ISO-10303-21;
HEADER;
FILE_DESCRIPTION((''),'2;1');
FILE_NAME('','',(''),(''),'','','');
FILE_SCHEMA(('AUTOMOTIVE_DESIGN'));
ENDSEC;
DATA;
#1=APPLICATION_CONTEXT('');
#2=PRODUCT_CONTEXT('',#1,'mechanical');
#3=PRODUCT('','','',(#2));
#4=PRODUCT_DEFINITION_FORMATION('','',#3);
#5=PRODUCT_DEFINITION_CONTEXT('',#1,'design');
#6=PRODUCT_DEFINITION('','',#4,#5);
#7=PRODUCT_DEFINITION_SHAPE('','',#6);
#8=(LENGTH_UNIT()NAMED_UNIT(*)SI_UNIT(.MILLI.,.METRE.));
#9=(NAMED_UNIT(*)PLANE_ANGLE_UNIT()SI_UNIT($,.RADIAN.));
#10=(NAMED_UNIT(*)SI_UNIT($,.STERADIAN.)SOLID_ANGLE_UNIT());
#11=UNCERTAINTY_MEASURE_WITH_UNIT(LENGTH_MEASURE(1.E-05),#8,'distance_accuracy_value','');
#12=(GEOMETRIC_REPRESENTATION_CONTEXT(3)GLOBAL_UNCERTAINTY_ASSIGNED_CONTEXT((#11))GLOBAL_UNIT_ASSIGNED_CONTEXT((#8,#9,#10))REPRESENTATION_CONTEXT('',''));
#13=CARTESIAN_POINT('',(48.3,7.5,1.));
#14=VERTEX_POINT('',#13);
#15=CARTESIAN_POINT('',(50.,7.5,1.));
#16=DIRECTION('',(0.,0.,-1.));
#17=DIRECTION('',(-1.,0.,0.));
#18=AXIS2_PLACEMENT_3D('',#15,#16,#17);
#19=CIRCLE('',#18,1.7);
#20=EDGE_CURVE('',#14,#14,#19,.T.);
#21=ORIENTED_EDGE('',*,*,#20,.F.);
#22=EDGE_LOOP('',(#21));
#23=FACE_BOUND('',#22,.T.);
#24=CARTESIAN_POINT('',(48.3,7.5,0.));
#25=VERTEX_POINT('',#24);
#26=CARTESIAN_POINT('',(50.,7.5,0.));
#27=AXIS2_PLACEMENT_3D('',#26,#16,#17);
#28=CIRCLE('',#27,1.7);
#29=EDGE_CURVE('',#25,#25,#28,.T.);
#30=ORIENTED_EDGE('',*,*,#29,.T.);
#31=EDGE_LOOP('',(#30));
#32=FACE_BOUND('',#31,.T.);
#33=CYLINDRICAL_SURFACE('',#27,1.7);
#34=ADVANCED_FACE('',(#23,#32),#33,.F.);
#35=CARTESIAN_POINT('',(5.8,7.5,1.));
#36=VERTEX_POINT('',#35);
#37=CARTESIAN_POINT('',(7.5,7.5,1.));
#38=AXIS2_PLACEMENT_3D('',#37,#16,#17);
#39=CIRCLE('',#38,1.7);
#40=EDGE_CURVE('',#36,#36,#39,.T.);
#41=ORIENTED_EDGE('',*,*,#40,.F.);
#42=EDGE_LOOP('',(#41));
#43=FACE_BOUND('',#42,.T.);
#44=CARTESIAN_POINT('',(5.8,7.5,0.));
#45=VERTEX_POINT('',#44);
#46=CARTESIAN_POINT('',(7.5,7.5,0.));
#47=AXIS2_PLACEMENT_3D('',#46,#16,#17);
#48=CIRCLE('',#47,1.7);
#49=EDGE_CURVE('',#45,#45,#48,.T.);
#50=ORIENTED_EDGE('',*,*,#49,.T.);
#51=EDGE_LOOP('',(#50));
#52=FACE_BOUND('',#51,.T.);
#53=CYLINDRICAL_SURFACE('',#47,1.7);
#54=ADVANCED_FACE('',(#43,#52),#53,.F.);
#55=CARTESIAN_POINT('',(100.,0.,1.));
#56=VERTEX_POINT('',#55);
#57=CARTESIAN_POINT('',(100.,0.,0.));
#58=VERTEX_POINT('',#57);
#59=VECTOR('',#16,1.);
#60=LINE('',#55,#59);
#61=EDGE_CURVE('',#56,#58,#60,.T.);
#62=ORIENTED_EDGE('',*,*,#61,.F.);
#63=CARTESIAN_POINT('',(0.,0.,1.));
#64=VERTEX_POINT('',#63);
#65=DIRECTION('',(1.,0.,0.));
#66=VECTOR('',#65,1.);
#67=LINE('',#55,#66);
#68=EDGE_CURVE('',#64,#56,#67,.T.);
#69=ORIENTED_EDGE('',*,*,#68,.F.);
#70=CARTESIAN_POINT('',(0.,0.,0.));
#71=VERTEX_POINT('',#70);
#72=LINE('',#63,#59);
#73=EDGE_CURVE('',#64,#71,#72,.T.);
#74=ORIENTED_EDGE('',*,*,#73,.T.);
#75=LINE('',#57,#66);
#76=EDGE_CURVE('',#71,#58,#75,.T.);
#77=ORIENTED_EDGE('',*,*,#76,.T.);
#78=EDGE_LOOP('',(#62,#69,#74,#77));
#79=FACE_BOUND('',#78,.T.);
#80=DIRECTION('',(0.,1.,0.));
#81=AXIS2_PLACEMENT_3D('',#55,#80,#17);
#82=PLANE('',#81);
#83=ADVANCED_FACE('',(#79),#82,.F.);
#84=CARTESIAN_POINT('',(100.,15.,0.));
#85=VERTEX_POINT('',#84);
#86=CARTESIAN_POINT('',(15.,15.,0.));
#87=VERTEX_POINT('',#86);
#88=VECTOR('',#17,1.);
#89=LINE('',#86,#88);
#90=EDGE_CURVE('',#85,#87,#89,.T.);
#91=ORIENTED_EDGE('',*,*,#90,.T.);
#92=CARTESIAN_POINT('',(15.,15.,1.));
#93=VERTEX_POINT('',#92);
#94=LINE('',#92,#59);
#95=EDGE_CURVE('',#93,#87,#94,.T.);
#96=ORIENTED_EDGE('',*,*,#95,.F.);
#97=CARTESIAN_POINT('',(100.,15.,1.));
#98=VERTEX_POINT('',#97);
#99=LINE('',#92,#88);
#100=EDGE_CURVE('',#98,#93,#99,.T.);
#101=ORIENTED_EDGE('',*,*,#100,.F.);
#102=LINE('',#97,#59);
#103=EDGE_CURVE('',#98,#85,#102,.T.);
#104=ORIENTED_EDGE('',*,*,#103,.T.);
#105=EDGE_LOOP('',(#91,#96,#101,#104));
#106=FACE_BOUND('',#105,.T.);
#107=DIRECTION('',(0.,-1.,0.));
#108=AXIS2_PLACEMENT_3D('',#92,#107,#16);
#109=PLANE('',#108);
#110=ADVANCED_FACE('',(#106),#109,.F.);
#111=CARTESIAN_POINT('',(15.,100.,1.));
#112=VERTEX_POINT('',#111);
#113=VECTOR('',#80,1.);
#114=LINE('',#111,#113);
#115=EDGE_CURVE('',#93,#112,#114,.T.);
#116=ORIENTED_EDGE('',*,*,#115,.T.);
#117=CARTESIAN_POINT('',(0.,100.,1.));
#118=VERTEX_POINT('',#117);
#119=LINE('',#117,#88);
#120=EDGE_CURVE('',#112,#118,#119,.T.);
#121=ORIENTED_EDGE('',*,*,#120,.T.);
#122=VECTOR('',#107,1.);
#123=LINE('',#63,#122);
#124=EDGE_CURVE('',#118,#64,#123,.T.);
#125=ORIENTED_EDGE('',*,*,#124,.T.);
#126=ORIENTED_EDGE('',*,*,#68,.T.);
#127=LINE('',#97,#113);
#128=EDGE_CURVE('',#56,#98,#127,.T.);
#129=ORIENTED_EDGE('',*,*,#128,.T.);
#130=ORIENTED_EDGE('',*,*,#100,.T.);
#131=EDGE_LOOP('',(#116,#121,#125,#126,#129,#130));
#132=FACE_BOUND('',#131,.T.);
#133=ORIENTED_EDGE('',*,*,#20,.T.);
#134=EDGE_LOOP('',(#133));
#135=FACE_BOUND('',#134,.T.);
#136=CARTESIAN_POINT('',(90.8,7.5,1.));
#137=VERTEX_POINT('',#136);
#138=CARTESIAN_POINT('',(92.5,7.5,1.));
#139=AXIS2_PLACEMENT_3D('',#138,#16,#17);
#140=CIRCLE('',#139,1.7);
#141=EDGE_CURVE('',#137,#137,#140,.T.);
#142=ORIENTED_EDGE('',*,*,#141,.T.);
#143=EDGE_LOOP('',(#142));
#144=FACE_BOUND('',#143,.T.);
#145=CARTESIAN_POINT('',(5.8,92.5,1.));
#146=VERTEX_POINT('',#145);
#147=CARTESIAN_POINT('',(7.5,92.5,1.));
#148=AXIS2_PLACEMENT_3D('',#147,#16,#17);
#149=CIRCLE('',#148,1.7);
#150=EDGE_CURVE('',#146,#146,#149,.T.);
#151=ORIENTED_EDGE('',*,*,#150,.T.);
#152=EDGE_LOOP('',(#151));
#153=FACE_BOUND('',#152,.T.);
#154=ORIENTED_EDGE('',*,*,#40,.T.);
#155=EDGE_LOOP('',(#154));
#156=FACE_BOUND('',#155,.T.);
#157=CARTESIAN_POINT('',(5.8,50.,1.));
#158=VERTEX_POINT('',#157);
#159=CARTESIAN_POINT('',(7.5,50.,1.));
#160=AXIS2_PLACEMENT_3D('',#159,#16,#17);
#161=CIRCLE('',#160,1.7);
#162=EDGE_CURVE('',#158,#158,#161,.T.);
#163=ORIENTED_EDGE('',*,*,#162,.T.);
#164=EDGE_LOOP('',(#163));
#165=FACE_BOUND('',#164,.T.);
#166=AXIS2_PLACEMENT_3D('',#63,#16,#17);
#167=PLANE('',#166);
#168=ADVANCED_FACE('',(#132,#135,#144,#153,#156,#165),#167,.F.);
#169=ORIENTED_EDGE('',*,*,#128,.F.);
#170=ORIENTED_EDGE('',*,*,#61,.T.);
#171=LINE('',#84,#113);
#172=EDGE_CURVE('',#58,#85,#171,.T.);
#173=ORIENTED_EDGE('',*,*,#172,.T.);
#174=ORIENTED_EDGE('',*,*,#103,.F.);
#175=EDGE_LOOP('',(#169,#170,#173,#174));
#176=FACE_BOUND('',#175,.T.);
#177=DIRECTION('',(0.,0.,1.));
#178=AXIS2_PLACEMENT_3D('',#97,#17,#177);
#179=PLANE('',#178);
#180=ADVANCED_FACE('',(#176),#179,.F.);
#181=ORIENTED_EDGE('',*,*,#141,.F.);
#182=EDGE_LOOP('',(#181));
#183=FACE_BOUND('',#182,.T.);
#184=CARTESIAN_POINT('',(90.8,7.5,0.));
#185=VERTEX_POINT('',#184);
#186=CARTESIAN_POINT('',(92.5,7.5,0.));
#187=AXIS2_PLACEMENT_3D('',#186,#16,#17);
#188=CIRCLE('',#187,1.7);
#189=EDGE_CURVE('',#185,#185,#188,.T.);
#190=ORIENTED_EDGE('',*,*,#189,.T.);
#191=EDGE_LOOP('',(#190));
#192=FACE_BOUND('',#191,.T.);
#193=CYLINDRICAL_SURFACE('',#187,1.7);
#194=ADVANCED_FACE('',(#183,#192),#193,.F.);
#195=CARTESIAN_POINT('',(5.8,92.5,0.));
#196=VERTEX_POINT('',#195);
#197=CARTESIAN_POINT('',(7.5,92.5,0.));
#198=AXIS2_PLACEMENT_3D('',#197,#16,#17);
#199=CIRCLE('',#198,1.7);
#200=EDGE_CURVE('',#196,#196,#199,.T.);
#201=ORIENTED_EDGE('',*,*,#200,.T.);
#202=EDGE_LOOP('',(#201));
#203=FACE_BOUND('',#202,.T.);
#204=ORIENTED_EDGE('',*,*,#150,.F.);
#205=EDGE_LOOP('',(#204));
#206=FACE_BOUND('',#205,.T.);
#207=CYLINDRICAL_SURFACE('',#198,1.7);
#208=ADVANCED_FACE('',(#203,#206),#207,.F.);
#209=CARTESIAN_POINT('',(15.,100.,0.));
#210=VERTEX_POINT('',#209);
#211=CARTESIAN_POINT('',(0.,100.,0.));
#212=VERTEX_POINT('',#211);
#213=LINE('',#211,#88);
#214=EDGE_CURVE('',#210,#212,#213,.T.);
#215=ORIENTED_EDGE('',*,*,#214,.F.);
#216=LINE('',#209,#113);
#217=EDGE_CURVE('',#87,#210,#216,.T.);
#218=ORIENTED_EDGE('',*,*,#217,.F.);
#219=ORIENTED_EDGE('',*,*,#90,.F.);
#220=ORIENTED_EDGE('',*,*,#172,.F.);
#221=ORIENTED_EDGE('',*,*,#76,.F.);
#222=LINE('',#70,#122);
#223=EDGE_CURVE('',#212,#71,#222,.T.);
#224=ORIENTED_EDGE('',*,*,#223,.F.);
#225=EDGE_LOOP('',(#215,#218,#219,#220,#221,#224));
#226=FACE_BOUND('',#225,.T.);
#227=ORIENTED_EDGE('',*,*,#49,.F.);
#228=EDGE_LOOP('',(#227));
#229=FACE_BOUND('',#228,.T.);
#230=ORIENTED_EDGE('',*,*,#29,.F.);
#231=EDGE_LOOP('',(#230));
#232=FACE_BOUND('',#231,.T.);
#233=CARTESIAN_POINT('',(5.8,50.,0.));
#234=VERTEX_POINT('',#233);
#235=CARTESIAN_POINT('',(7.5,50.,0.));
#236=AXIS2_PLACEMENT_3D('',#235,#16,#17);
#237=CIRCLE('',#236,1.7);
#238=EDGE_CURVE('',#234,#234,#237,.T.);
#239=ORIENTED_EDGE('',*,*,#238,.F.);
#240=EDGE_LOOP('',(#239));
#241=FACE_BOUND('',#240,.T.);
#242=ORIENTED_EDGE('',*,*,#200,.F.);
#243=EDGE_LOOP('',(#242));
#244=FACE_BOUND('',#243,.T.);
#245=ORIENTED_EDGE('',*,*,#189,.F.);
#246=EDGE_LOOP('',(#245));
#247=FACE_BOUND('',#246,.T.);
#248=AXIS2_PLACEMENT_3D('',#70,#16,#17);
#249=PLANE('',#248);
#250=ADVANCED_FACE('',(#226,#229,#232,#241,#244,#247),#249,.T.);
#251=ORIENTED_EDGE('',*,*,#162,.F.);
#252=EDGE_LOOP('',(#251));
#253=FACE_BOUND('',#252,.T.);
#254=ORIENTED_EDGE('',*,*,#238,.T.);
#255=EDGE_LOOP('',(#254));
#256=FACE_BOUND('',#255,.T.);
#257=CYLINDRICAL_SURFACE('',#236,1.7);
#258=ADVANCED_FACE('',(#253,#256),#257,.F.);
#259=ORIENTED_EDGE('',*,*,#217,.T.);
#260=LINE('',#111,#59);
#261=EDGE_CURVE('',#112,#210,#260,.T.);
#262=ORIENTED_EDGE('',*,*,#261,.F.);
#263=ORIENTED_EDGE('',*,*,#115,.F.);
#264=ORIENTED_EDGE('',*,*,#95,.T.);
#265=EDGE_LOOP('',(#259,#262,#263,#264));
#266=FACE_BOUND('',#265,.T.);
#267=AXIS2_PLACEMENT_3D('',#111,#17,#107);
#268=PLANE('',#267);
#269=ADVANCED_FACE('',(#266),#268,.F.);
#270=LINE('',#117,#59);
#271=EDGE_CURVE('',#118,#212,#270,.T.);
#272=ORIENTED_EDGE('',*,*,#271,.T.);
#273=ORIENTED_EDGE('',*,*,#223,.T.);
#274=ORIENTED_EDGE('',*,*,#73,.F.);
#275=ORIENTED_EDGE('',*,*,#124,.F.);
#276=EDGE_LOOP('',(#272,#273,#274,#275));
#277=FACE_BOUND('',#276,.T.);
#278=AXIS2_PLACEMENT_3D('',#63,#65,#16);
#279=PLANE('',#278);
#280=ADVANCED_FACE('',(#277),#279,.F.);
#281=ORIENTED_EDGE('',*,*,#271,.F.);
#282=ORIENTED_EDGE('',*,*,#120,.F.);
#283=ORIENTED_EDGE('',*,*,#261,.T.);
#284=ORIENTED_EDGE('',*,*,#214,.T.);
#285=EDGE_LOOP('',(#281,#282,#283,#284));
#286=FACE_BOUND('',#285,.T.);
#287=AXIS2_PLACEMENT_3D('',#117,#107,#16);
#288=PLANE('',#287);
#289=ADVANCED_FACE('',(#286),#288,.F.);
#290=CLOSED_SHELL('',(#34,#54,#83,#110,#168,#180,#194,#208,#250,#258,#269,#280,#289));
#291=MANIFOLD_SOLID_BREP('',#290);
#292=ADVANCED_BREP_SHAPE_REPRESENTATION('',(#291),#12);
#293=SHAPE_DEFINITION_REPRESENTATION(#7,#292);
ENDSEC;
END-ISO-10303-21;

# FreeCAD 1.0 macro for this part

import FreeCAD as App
import Part
import Sketcher
from FreeCAD import Vector
Q = App.Units.Quantity


def add_polygon(sketch, points):
    """Adds a closed chain of lines whose ends are joined by coincident constraints."""
    first, n = sketch.GeometryCount, len(points)
    for a, b in zip(points, points[1:] + points[:1]):
        sketch.addGeometry(Part.LineSegment(App.Vector(*a, 0), App.Vector(*b, 0)), False)
    for i in range(n):
        sketch.addConstraint(Sketcher.Constraint("Coincident", first + i, 2, first + (i + 1) % n, 1))

doc = App.newDocument("Part")
params = doc.addObject("Spreadsheet::Sheet", "Params")
for row, (alias, value) in enumerate([
    ("sketch1_width", "100 mm"),
    ("sketch1_width2", "85 mm"),
    ("pad1_length", "1 mm"),
    ("sketch2_diameter", "3.4 mm"),
    ("hole_diameter", "3.4 mm"),
], start=1):
    params.set(f"A{row}", alias)
    params.set(f"B{row}", "=" + value)
    params.setAlias(f"B{row}", alias)

body = doc.addObject("PartDesign::Body", "Body")

# Sketch on XY plane
sketch1 = body.newObject("Sketcher::SketchObject", "Sketch")
sketch1.AttachmentSupport = (doc.getObject("XY_Plane"), [""])
sketch1.MapMode = "FlatFace"
add_polygon(sketch1, [(0, 100), (0, 0), (100, 0), (100, 15), (15, 15), (15, 100)])  # lines 0-5
sketch1.addConstraint(Sketcher.Constraint("Vertical", 0))
sketch1.addConstraint(Sketcher.Constraint("Horizontal", 1))
sketch1.addConstraint(Sketcher.Constraint("Vertical", 2))
sketch1.addConstraint(Sketcher.Constraint("Horizontal", 3))
sketch1.addConstraint(Sketcher.Constraint("Vertical", 4))
sketch1.addConstraint(Sketcher.Constraint("Horizontal", 5))
sketch1.addConstraint(Sketcher.Constraint("Coincident", 0, 2, -1, 1))
sketch1.addConstraint(Sketcher.Constraint("Equal", 1, 0))
sketch1.addConstraint(Sketcher.Constraint("Equal", 5, 2))
sketch1.addConstraint(Sketcher.Constraint("DistanceX", 1, 1, 1, 2, Q("100 mm")))
sketch1.addConstraint(Sketcher.Constraint("DistanceX", 3, 2, 3, 1, Q("85 mm")))
sketch1.setExpression("Constraints[15]", "Params.sketch1_width")
sketch1.setExpression("Constraints[16]", "Params.sketch1_width2")
pad1 = body.newObject("PartDesign::Pad", "Pad")
pad1.Profile = sketch1
pad1.setExpression("Length", "Params.pad1_length")

# Sketch on XY plane
sketch2 = body.newObject("Sketcher::SketchObject", "Sketch001")
sketch2.AttachmentSupport = (doc.getObject("XY_Plane"), [""])
sketch2.MapMode = "FlatFace"
sketch2.addGeometry(Part.Circle(Vector(92.5, 7.5, 0), Vector(0, 0, 1), 1.7), False)
sketch2.addGeometry(Part.Circle(Vector(7.5, 7.5, 0), Vector(0, 0, 1), 1.7), False)
sketch2.addGeometry(Part.Circle(Vector(7.5, 92.5, 0), Vector(0, 0, 1), 1.7), False)
sketch2.addGeometry(Part.Circle(Vector(7.5, 50, 0), Vector(0, 0, 1), 1.7), False)
sketch2.addGeometry(Part.Circle(Vector(50, 7.5, 0), Vector(0, 0, 1), 1.7), False)
sketch2.addConstraint(Sketcher.Constraint("Equal", 0, 1))
sketch2.addConstraint(Sketcher.Constraint("Equal", 1, 2))
sketch2.addConstraint(Sketcher.Constraint("Equal", 2, 3))
sketch2.addConstraint(Sketcher.Constraint("Equal", 3, 4))
sketch2.addConstraint(Sketcher.Constraint("Horizontal", 0, 3, 1, 3))
sketch2.addConstraint(Sketcher.Constraint("Horizontal", 1, 3, 4, 3))
sketch2.addConstraint(Sketcher.Constraint("Vertical", 1, 3, 2, 3))
sketch2.addConstraint(Sketcher.Constraint("Vertical", 2, 3, 3, 3))
sketch2.addConstraint(Sketcher.Constraint("Diameter", 0, Q("3.4 mm")))
sketch2.addConstraint(Sketcher.Constraint("DistanceY", -1, 1, 3, 3, Q("50 mm")))
sketch2.addConstraint(Sketcher.Constraint("DistanceX", -1, 1, 4, 3, Q("50 mm")))
sketch2.addConstraint(Sketcher.Constraint("DistanceX", 1, 3, 0, 3, Q("85 mm")))
sketch2.addConstraint(Sketcher.Constraint("DistanceY", 1, 3, 2, 3, Q("85 mm")))
sketch2.addConstraint(Sketcher.Constraint("DistanceX", -1, 1, 0, 3, Q("92.5 mm")))
sketch2.addConstraint(Sketcher.Constraint("DistanceY", -1, 1, 0, 3, Q("7.5 mm")))
sketch2.setExpression("Constraints[8]", "Params.sketch2_diameter")
doc.recompute()
hole = body.newObject("PartDesign::Hole", "Hole")
hole.Profile = sketch2
hole.ThreadType = "None"
hole.setExpression("Diameter", "Params.hole_diameter")
hole.DepthType = "ThroughAll"
hole.Reversed = True

doc.recompute()
